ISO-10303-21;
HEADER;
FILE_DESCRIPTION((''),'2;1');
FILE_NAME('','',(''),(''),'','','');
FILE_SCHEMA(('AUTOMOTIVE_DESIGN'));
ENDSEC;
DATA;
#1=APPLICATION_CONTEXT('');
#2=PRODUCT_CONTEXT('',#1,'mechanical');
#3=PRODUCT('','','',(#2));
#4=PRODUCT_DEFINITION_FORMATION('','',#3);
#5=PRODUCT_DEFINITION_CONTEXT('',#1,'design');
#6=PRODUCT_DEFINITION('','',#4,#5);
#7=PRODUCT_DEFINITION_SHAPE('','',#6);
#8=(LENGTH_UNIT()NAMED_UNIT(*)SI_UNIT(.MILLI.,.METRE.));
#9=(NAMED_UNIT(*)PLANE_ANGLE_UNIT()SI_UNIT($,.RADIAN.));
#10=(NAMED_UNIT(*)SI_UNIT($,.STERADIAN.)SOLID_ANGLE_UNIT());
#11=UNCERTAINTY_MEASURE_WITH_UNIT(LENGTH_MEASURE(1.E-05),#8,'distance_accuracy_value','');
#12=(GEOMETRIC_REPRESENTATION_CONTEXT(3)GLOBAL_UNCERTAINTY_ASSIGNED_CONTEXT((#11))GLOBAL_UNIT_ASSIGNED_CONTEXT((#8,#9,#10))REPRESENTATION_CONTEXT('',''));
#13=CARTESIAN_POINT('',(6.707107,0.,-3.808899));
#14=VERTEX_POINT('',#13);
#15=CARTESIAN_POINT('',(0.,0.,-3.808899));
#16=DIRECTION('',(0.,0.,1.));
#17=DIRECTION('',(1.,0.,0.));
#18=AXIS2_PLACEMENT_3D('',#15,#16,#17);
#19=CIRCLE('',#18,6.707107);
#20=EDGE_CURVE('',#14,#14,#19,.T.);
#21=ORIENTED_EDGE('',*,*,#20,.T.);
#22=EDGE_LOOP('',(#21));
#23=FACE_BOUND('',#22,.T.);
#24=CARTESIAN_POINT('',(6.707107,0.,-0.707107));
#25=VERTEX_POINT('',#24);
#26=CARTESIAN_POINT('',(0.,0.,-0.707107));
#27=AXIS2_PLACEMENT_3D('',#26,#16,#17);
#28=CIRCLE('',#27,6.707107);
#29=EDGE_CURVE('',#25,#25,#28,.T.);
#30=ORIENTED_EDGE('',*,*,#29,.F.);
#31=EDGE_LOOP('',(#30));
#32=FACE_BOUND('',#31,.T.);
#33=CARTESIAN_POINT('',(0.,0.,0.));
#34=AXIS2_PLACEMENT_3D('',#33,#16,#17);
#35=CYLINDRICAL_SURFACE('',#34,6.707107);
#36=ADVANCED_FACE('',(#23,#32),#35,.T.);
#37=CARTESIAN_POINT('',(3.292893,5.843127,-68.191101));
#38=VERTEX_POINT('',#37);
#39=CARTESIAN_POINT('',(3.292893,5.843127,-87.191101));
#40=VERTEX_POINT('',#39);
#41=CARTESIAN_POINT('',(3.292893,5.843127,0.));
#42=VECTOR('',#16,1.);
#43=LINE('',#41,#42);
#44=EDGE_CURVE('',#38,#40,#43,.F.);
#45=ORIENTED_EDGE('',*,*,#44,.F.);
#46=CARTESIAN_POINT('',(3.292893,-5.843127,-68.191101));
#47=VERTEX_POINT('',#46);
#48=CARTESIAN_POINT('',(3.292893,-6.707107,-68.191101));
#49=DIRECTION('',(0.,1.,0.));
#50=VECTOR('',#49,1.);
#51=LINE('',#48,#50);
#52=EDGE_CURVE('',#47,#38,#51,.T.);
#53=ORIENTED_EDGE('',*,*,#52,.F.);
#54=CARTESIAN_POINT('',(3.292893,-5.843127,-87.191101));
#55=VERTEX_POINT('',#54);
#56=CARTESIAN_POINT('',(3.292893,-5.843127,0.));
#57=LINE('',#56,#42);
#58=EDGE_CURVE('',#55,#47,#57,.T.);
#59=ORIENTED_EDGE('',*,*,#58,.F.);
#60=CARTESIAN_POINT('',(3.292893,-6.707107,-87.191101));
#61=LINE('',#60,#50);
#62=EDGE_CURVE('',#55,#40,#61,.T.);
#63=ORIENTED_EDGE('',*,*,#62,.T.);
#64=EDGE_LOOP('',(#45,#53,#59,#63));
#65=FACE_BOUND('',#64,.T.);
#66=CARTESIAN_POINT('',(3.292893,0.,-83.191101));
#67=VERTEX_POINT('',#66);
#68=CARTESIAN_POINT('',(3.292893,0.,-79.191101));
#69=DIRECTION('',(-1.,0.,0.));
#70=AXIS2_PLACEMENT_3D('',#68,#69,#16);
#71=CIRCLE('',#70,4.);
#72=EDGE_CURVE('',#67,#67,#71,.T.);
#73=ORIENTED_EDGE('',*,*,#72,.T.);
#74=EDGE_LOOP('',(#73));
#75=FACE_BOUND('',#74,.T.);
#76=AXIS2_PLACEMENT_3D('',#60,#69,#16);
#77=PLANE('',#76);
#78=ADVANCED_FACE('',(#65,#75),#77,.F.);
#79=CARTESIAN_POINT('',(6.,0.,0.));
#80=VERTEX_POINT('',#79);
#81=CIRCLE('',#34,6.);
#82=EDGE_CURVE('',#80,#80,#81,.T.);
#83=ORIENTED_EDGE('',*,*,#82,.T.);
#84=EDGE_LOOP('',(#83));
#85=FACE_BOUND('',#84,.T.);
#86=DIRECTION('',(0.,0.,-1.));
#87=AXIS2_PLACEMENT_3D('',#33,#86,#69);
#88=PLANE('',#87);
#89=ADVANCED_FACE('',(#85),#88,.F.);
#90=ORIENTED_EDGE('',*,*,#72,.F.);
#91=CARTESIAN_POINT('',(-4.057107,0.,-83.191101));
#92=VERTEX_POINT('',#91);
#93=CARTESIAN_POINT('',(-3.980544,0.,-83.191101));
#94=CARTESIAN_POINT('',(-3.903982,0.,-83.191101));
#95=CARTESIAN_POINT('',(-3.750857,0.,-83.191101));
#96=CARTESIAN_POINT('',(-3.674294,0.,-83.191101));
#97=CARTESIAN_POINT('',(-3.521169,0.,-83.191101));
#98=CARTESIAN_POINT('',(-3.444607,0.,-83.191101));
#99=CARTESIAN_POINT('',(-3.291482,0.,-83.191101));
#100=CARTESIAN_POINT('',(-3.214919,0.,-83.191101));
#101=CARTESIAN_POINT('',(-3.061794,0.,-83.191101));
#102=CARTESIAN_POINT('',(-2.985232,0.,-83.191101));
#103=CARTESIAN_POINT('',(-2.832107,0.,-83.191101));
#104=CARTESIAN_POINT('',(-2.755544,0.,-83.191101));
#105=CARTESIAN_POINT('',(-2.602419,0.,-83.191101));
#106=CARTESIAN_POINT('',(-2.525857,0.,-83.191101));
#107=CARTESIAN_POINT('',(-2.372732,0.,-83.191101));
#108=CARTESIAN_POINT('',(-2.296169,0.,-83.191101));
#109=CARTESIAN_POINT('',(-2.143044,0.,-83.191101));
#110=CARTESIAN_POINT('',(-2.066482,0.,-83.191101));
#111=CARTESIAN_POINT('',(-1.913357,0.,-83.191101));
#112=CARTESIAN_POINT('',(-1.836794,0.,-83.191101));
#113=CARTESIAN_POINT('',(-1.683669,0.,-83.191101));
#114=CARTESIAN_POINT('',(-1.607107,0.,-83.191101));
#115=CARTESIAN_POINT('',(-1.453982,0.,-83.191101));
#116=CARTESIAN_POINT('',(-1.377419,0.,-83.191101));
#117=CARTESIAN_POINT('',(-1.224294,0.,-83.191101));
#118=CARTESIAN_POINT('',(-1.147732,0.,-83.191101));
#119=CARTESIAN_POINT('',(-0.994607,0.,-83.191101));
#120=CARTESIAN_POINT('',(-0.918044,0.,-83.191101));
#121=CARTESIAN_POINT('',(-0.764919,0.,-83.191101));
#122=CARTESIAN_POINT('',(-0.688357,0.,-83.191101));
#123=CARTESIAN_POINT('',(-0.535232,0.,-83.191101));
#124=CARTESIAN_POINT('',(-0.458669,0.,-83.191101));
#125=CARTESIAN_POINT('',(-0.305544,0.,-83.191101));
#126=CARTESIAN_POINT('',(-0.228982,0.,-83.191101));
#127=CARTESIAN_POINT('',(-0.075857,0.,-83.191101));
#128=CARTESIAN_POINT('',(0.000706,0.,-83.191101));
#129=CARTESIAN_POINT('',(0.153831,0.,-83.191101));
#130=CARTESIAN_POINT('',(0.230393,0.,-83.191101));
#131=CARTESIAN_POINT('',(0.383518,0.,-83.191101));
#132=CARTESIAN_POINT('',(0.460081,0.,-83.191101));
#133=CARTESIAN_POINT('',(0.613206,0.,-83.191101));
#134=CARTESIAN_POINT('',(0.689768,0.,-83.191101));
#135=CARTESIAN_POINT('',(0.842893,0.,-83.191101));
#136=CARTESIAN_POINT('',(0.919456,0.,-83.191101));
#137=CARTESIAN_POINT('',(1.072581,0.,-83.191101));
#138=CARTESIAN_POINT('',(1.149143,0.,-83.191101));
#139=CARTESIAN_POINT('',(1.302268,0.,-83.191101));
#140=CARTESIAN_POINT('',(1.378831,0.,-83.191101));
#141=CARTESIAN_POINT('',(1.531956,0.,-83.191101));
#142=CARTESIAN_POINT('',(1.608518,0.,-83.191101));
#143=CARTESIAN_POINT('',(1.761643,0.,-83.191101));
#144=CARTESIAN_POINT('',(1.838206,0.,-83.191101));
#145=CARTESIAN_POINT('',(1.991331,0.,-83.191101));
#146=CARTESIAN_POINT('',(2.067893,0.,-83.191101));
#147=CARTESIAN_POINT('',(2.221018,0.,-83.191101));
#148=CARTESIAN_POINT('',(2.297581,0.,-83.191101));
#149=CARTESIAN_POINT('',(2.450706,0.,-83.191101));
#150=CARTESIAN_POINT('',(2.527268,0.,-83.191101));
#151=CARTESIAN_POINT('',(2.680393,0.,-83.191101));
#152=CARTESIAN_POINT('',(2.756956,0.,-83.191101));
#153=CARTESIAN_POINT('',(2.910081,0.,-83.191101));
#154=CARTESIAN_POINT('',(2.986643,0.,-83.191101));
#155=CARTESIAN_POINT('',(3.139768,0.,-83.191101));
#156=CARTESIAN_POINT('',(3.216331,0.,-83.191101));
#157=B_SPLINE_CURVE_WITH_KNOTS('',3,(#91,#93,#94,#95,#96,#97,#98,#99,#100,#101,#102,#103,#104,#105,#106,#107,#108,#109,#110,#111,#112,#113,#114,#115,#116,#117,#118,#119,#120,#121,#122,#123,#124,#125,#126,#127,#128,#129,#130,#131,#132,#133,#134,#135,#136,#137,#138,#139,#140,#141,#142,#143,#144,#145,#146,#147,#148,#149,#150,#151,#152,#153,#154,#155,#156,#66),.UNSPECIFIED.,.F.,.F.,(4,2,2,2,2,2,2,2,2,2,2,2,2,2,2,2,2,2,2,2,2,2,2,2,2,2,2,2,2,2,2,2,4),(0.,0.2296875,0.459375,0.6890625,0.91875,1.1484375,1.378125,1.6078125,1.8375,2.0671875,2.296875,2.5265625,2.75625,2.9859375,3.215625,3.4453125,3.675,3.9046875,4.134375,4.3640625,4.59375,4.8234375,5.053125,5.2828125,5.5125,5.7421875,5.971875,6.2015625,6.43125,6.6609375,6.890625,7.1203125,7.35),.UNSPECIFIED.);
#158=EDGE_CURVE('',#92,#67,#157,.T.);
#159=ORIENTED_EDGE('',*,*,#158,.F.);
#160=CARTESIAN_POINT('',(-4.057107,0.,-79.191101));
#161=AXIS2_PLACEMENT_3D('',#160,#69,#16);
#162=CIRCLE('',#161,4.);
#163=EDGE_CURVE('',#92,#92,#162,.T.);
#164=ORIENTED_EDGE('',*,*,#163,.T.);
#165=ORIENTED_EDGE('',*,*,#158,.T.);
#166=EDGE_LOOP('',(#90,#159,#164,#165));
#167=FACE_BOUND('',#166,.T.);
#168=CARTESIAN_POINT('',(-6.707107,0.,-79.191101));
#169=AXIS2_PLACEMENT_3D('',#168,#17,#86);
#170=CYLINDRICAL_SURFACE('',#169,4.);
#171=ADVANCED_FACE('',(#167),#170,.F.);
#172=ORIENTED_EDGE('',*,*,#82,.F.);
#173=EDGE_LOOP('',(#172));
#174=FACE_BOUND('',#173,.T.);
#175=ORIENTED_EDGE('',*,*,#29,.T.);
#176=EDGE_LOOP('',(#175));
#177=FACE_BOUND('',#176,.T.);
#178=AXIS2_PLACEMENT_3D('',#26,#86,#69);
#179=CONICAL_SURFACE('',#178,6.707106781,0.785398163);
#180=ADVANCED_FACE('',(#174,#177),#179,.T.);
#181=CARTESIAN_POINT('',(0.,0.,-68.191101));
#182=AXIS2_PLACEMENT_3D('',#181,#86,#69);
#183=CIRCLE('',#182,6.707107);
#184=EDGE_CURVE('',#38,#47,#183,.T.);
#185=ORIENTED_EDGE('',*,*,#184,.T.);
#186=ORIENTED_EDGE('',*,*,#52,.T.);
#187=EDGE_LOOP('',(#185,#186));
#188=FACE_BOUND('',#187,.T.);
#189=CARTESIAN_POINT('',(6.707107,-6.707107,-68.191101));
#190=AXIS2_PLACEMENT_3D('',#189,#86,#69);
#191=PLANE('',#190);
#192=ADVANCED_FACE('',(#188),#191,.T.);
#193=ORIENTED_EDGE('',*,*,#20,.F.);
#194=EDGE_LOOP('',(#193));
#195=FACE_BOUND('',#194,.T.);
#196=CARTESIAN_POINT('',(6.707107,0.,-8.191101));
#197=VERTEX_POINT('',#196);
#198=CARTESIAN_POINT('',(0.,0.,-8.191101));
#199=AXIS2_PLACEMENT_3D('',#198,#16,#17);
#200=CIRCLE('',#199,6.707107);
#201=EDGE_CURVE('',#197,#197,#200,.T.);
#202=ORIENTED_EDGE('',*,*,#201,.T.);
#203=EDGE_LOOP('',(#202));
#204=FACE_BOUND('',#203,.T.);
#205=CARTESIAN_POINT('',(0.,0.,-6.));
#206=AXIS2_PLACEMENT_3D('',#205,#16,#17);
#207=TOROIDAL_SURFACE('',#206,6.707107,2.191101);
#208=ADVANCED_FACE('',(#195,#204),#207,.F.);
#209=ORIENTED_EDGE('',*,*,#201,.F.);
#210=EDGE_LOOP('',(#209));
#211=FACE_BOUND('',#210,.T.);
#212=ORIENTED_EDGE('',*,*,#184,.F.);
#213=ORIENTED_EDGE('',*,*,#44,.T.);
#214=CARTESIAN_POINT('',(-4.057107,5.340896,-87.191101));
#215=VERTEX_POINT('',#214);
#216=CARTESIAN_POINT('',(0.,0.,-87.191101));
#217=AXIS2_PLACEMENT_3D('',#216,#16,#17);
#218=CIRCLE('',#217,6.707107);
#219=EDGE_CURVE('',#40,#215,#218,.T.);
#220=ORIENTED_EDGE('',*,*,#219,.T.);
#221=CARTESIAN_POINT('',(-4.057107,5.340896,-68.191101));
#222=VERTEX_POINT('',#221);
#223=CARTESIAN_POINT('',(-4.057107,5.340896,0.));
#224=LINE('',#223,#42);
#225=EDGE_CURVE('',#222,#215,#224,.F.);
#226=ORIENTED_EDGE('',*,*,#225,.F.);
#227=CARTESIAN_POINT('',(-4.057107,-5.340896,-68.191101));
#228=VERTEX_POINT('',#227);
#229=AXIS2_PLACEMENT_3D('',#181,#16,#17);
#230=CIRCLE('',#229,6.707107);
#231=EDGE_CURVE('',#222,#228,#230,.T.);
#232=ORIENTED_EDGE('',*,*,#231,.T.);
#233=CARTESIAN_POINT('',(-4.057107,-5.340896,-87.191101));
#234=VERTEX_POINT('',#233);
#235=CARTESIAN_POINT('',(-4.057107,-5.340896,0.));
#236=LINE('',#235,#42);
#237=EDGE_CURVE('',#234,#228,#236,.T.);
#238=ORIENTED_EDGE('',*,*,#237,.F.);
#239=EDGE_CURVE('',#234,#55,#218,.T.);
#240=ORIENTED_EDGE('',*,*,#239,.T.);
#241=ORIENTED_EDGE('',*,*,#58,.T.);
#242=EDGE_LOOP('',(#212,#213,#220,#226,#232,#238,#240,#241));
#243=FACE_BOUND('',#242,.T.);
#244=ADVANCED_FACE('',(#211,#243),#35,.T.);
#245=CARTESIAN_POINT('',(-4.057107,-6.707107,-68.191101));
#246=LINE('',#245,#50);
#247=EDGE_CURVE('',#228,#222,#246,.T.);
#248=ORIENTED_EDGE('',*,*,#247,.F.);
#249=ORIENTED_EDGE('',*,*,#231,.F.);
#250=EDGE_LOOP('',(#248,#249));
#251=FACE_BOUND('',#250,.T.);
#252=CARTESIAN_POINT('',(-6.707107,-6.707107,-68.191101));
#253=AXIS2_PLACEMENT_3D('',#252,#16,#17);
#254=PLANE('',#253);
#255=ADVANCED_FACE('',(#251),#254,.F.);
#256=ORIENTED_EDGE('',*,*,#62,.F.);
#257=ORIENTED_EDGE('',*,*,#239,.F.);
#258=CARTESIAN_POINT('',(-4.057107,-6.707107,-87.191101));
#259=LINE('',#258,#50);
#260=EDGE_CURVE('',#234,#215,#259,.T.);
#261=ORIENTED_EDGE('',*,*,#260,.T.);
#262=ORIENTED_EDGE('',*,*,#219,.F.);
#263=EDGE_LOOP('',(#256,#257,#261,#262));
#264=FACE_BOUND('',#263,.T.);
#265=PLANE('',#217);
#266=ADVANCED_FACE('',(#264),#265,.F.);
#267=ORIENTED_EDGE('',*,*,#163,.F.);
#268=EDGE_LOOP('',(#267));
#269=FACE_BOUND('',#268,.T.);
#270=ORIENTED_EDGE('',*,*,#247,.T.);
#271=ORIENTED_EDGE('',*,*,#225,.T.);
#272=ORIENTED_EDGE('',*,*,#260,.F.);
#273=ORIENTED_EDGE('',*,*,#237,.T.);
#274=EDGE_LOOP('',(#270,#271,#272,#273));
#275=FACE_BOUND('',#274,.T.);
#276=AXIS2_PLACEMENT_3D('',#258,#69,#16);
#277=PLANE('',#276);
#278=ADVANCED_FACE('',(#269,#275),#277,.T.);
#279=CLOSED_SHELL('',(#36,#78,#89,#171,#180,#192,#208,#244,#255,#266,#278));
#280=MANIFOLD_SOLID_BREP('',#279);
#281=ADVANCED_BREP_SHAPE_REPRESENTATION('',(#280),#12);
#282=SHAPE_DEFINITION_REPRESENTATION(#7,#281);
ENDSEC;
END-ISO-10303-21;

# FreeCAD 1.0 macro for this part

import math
import FreeCAD as App
import Part
import Sketcher

V = App.Vector
Q = App.Units.Quantity


def add_polygon(sketch, points):
    """Adds a closed chain of lines whose ends are joined by coincident constraints."""
    first, n = sketch.GeometryCount, len(points)
    for a, b in zip(points, points[1:] + points[:1]):
        sketch.addGeometry(Part.LineSegment(App.Vector(*a, 0), App.Vector(*b, 0)), False)
    for i in range(n):
        sketch.addConstraint(Sketcher.Constraint("Coincident", first + i, 2, first + (i + 1) % n, 1))

doc = App.newDocument("Part")
body = doc.addObject("PartDesign::Body", "Body")

# Sketch on YZ plane
sketch1 = body.newObject("Sketcher::SketchObject", "Sketch")
sketch1.AttachmentSupport = (doc.getObject("YZ_Plane"), [""])
sketch1.MapMode = "FlatFace"
sketch1.addGeometry([
    Part.LineSegment(V(6, 0, 0), V(0, 0, 0)),  # 0
    Part.LineSegment(V(0, 0, 0), V(0, -87.2, 0)),  # 1
    Part.LineSegment(V(0, -87.2, 0), V(6.7, -87.2, 0)),  # 2
    Part.LineSegment(V(6.7, -87.2, 0), V(6.7, -8.2, 0)),  # 3
    Part.ArcOfCircle(Part.Circle(V(6.7, -6, 0), V(0, 0, 1), 2.2), math.radians(90), math.radians(270)),  # 4
    Part.LineSegment(V(6.7, -3.8, 0), V(6.7, -0.7, 0)),  # 5
    Part.LineSegment(V(6.7, -0.7, 0), V(6, 0, 0)),  # 6
], False)
sketch1.addConstraint([
    Sketcher.Constraint("Coincident", 0, 2, 1, 1),
    Sketcher.Constraint("Coincident", 1, 2, 2, 1),
    Sketcher.Constraint("Coincident", 2, 2, 3, 1),
    Sketcher.Constraint("Coincident", 3, 2, 4, 2),
    Sketcher.Constraint("Coincident", 4, 1, 5, 1),
    Sketcher.Constraint("Coincident", 5, 2, 6, 1),
    Sketcher.Constraint("Coincident", 6, 2, 0, 1),
    Sketcher.Constraint("Horizontal", 0),
    Sketcher.Constraint("Vertical", 1),
    Sketcher.Constraint("Horizontal", 2),
    Sketcher.Constraint("Vertical", 3),
    Sketcher.Constraint("Vertical", 5),
    Sketcher.Constraint("Coincident", 0, 2, -1, 1),
    Sketcher.Constraint("Vertical", 4, 3, 2, 2),
    Sketcher.Constraint("Vertical", 3, 2, 4, 1),
    Sketcher.Constraint("DistanceX", 0, 2, 0, 1, 6.0),
    Sketcher.Constraint("DistanceY", 3, 1, 3, 2, 79.0),
    Sketcher.Constraint("Angle", 6, Q("135 deg")),
    Sketcher.Constraint("Distance", 6, 1.0),
    Sketcher.Constraint("DistanceY", 4, 3, -1, 1, 6.0),
    Sketcher.Constraint("Radius", 4, 2.191101),
])
revolution = body.newObject("PartDesign::Revolution", "Revolution")
revolution.Profile = sketch1
revolution.ReferenceAxis = (sketch1, ["V_Axis"])
revolution.Angle = 360

# Sketch on XZ plane
sketch2 = body.newObject("Sketcher::SketchObject", "Sketch001")
sketch2.AttachmentSupport = (doc.getObject("XZ_Plane"), [""])
sketch2.MapMode = "FlatFace"
add_polygon(sketch2, [(3.3, -87.2), (3.3, -68.2), (6.7, -68.2), (6.7, -87.2)])  # lines 0-3
add_polygon(sketch2, [(-6.7, -87.2), (-6.7, -68.2), (-4.1, -68.2), (-4.1, -87.2)])  # lines 4-7
sketch2.addConstraint([
    Sketcher.Constraint("Vertical", 0),
    Sketcher.Constraint("Horizontal", 1),
    Sketcher.Constraint("Vertical", 2),
    Sketcher.Constraint("Horizontal", 3),
    Sketcher.Constraint("Vertical", 4),
    Sketcher.Constraint("Horizontal", 5),
    Sketcher.Constraint("Vertical", 6),
    Sketcher.Constraint("Horizontal", 7),
    Sketcher.Constraint("Symmetric", 1, 2, 4, 2, -2),
    Sketcher.Constraint("Horizontal", 3, 2, 6, 2),
    Sketcher.Constraint("DistanceY", 0, 1, 0, 2, 19.0),
    Sketcher.Constraint("DistanceX", 4, 2, 0, 2, 10.0),
    Sketcher.Constraint("DistanceX", 5, 1, 5, 2, 2.65),
    Sketcher.Constraint("DistanceY", 0, 2, -1, 1, 68.191101),
    Sketcher.Constraint("DistanceX", 1, 1, 1, 2, 3.414214),
])
pocket1 = body.newObject("PartDesign::Pocket", "Pocket")
pocket1.Profile = sketch2
pocket1.Type = "ThroughAll"
pocket1.Midplane = True

# Sketch on YZ plane
sketch3 = body.newObject("Sketcher::SketchObject", "Sketch002")
sketch3.AttachmentSupport = (doc.getObject("YZ_Plane"), [""])
sketch3.MapMode = "FlatFace"
sketch3.AttachmentOffset = App.Placement(V(0, 0, 3.292893), App.Rotation())
sketch3.addGeometry(Part.Circle(V(0, -79.2, 0), V(0, 0, 1), 4), False)
sketch3.addConstraint([
    Sketcher.Constraint("PointOnObject", 0, 3, -2),
    Sketcher.Constraint("Diameter", 0, 8.0),
    Sketcher.Constraint("DistanceY", 0, 3, -1, 1, 79.191101),
])
pocket2 = body.newObject("PartDesign::Pocket", "Pocket001")
pocket2.Profile = sketch3
pocket2.Type = "ThroughAll"
pocket2.Midplane = True

doc.recompute()
